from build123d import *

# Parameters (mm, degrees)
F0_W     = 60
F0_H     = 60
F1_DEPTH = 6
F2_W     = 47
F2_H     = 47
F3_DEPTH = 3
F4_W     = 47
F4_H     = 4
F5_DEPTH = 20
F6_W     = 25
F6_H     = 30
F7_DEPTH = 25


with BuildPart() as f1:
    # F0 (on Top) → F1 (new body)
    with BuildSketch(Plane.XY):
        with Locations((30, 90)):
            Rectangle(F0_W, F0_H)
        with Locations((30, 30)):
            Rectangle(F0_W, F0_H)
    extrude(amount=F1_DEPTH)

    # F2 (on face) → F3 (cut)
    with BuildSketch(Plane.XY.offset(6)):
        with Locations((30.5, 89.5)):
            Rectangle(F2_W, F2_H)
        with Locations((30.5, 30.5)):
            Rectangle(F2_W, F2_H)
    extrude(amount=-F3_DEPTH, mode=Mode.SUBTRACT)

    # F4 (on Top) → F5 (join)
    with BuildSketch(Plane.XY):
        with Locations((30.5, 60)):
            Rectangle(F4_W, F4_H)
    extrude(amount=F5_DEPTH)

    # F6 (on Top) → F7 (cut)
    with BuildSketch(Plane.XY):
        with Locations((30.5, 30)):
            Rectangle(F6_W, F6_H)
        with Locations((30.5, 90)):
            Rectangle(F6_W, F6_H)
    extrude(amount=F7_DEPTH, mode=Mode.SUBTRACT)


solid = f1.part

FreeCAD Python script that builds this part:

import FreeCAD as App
import Part
import Sketcher

doc = App.newDocument("Part")
params = doc.addObject("Spreadsheet::Sheet", "Params")
for row, (alias, value) in enumerate([
    ("sketch1_width", "60 mm"),
    ("sketch1_height", "120 mm"),
    ("pad1_length", "6 mm"),
    ("sketch2_width", "47 mm"),
    ("pocket1_length", "3 mm"),
    ("sketch3_width", "47 mm"),
    ("sketch3_height", "4 mm"),
    ("pad2_length", "20 mm"),
    ("sketch4_width", "25 mm"),
    ("sketch4_height", "30 mm"),
    ("pocket2_length", "25 mm"),
], start=1):
    params.set(f"A{row}", alias)
    params.set(f"B{row}", "=" + value)
    params.setAlias(f"B{row}", alias)

body = doc.addObject("PartDesign::Body", "Body")

# Sketch on XY plane
sketch1 = body.newObject("Sketcher::SketchObject", "Sketch")
sketch1.AttachmentSupport = (doc.getObject("XY_Plane"), [""])
sketch1.MapMode = "FlatFace"
sketch1.addGeometry([
    Part.LineSegment(App.Vector(0, 120, 0), App.Vector(0, 0, 0)),
    Part.LineSegment(App.Vector(0, 0, 0), App.Vector(60, 0, 0)),
    Part.LineSegment(App.Vector(60, 0, 0), App.Vector(60, 120, 0)),
    Part.LineSegment(App.Vector(60, 120, 0), App.Vector(0, 120, 0)),
], False)
sketch1.addConstraint([
    Sketcher.Constraint("Coincident", 0, 2, 1, 1),
    Sketcher.Constraint("Coincident", 1, 2, 2, 1),
    Sketcher.Constraint("Coincident", 2, 2, 3, 1),
    Sketcher.Constraint("Coincident", 3, 2, 0, 1),
    Sketcher.Constraint("Vertical", 0),
    Sketcher.Constraint("Horizontal", 1),
    Sketcher.Constraint("Vertical", 2),
    Sketcher.Constraint("Horizontal", 3),
    Sketcher.Constraint("Coincident", 0, 2, -1, 1),
    Sketcher.Constraint("DistanceX", 1, 1, 1, 2, 60.0),
    Sketcher.Constraint("DistanceY", 0, 2, 0, 1, 120.0),
])
sketch1.setExpression("Constraints[9]", "Params.sketch1_width")
sketch1.setExpression("Constraints[10]", "Params.sketch1_height")
pad1 = body.newObject("PartDesign::Pad", "Pad")
pad1.Profile = sketch1
pad1.setExpression("Length", "Params.pad1_length")

# Sketch on XY plane
sketch2 = body.newObject("Sketcher::SketchObject", "Sketch001")
sketch2.AttachmentSupport = (doc.getObject("XY_Plane"), [""])
sketch2.MapMode = "FlatFace"
sketch2.AttachmentOffset = App.Placement(App.Vector(0, 0, 6), App.Rotation())
sketch2.addGeometry([
    Part.LineSegment(App.Vector(7, 113, 0), App.Vector(7, 66, 0)),  # 0
    Part.LineSegment(App.Vector(7, 66, 0), App.Vector(54, 66, 0)),  # 1
    Part.LineSegment(App.Vector(54, 66, 0), App.Vector(54, 113, 0)),  # 2
    Part.LineSegment(App.Vector(54, 113, 0), App.Vector(7, 113, 0)),  # 3
    Part.LineSegment(App.Vector(7, 54, 0), App.Vector(7, 7, 0)),  # 4
    Part.LineSegment(App.Vector(7, 7, 0), App.Vector(54, 7, 0)),  # 5
    Part.LineSegment(App.Vector(54, 7, 0), App.Vector(54, 54, 0)),  # 6
    Part.LineSegment(App.Vector(54, 54, 0), App.Vector(7, 54, 0)),  # 7
], False)
sketch2.addConstraint([
    Sketcher.Constraint("Coincident", 0, 2, 1, 1),
    Sketcher.Constraint("Coincident", 1, 2, 2, 1),
    Sketcher.Constraint("Coincident", 2, 2, 3, 1),
    Sketcher.Constraint("Coincident", 3, 2, 0, 1),
    Sketcher.Constraint("Coincident", 4, 2, 5, 1),
    Sketcher.Constraint("Coincident", 5, 2, 6, 1),
    Sketcher.Constraint("Coincident", 6, 2, 7, 1),
    Sketcher.Constraint("Coincident", 7, 2, 4, 1),
    Sketcher.Constraint("Vertical", 0),
    Sketcher.Constraint("Horizontal", 1),
    Sketcher.Constraint("Vertical", 2),
    Sketcher.Constraint("Horizontal", 3),
    Sketcher.Constraint("Vertical", 4),
    Sketcher.Constraint("Horizontal", 5),
    Sketcher.Constraint("Vertical", 6),
    Sketcher.Constraint("Horizontal", 7),
    Sketcher.Constraint("Vertical", 3, 2, 4, 2),
    Sketcher.Constraint("Vertical", 2, 2, 5, 2),
    Sketcher.Constraint("Equal", 7, 0),
    Sketcher.Constraint("Equal", 2, 4),
    Sketcher.Constraint("DistanceX", 1, 1, 1, 2, 47.0),
    Sketcher.Constraint("DistanceX", -1, 1, 0, 2, 7.0),
    Sketcher.Constraint("DistanceY", -1, 1, 0, 2, 66.0),
    Sketcher.Constraint("DistanceY", -1, 1, 4, 2, 7.0),
])
sketch2.setExpression("Constraints[20]", "Params.sketch2_width")
pocket1 = body.newObject("PartDesign::Pocket", "Pocket")
pocket1.Profile = sketch2
pocket1.setExpression("Length", "Params.pocket1_length")

# Sketch on XY plane
sketch3 = body.newObject("Sketcher::SketchObject", "Sketch002")
sketch3.AttachmentSupport = (doc.getObject("XY_Plane"), [""])
sketch3.MapMode = "FlatFace"
sketch3.addGeometry([
    Part.LineSegment(App.Vector(7, 62, 0), App.Vector(7, 58, 0)),
    Part.LineSegment(App.Vector(7, 58, 0), App.Vector(54, 58, 0)),
    Part.LineSegment(App.Vector(54, 58, 0), App.Vector(54, 62, 0)),
    Part.LineSegment(App.Vector(54, 62, 0), App.Vector(7, 62, 0)),
], False)
sketch3.addConstraint([
    Sketcher.Constraint("Coincident", 0, 2, 1, 1),
    Sketcher.Constraint("Coincident", 1, 2, 2, 1),
    Sketcher.Constraint("Coincident", 2, 2, 3, 1),
    Sketcher.Constraint("Coincident", 3, 2, 0, 1),
    Sketcher.Constraint("Vertical", 0),
    Sketcher.Constraint("Horizontal", 1),
    Sketcher.Constraint("Vertical", 2),
    Sketcher.Constraint("Horizontal", 3),
    Sketcher.Constraint("DistanceX", 1, 1, 1, 2, 47.0),
    Sketcher.Constraint("DistanceY", 0, 2, 0, 1, 4.0),
    Sketcher.Constraint("DistanceX", -1, 1, 0, 2, 7.0),
    Sketcher.Constraint("DistanceY", -1, 1, 0, 2, 58.0),
])
sketch3.setExpression("Constraints[8]", "Params.sketch3_width")
sketch3.setExpression("Constraints[9]", "Params.sketch3_height")
pad2 = body.newObject("PartDesign::Pad", "Pad001")
pad2.Profile = sketch3
pad2.setExpression("Length", "Params.pad2_length")

# Sketch on XY plane
sketch4 = body.newObject("Sketcher::SketchObject", "Sketch003")
sketch4.AttachmentSupport = (doc.getObject("XY_Plane"), [""])
sketch4.MapMode = "FlatFace"
sketch4.addGeometry([
    Part.LineSegment(App.Vector(18, 45, 0), App.Vector(18, 15, 0)),  # 0
    Part.LineSegment(App.Vector(18, 15, 0), App.Vector(43, 15, 0)),  # 1
    Part.LineSegment(App.Vector(43, 15, 0), App.Vector(43, 45, 0)),  # 2
    Part.LineSegment(App.Vector(43, 45, 0), App.Vector(18, 45, 0)),  # 3
    Part.LineSegment(App.Vector(18, 105, 0), App.Vector(18, 75, 0)),  # 4
    Part.LineSegment(App.Vector(18, 75, 0), App.Vector(43, 75, 0)),  # 5
    Part.LineSegment(App.Vector(43, 75, 0), App.Vector(43, 105, 0)),  # 6
    Part.LineSegment(App.Vector(43, 105, 0), App.Vector(18, 105, 0)),  # 7
], False)
sketch4.addConstraint([
    Sketcher.Constraint("Coincident", 0, 2, 1, 1),
    Sketcher.Constraint("Coincident", 1, 2, 2, 1),
    Sketcher.Constraint("Coincident", 2, 2, 3, 1),
    Sketcher.Constraint("Coincident", 3, 2, 0, 1),
    Sketcher.Constraint("Coincident", 4, 2, 5, 1),
    Sketcher.Constraint("Coincident", 5, 2, 6, 1),
    Sketcher.Constraint("Coincident", 6, 2, 7, 1),
    Sketcher.Constraint("Coincident", 7, 2, 4, 1),
    Sketcher.Constraint("Vertical", 0),
    Sketcher.Constraint("Horizontal", 1),
    Sketcher.Constraint("Vertical", 2),
    Sketcher.Constraint("Horizontal", 3),
    Sketcher.Constraint("Vertical", 4),
    Sketcher.Constraint("Horizontal", 5),
    Sketcher.Constraint("Vertical", 6),
    Sketcher.Constraint("Horizontal", 7),
    Sketcher.Constraint("Vertical", 3, 2, 4, 2),
    Sketcher.Constraint("Vertical", 2, 2, 5, 2),
    Sketcher.Constraint("Equal", 2, 4),
    Sketcher.Constraint("DistanceX", 1, 1, 1, 2, 25.0),
    Sketcher.Constraint("DistanceY", 0, 2, 0, 1, 30.0),
    Sketcher.Constraint("DistanceX", -1, 1, 0, 2, 18.0),
    Sketcher.Constraint("DistanceY", -1, 1, 0, 2, 15.0),
    Sketcher.Constraint("DistanceY", -1, 1, 4, 2, 75.0),
])
sketch4.setExpression("Constraints[19]", "Params.sketch4_width")
sketch4.setExpression("Constraints[20]", "Params.sketch4_height")
pocket2 = body.newObject("PartDesign::Pocket", "Pocket001")
pocket2.Profile = sketch4
pocket2.setExpression("Length", "Params.pocket2_length")
pocket2.Reversed = True

doc.recompute()
